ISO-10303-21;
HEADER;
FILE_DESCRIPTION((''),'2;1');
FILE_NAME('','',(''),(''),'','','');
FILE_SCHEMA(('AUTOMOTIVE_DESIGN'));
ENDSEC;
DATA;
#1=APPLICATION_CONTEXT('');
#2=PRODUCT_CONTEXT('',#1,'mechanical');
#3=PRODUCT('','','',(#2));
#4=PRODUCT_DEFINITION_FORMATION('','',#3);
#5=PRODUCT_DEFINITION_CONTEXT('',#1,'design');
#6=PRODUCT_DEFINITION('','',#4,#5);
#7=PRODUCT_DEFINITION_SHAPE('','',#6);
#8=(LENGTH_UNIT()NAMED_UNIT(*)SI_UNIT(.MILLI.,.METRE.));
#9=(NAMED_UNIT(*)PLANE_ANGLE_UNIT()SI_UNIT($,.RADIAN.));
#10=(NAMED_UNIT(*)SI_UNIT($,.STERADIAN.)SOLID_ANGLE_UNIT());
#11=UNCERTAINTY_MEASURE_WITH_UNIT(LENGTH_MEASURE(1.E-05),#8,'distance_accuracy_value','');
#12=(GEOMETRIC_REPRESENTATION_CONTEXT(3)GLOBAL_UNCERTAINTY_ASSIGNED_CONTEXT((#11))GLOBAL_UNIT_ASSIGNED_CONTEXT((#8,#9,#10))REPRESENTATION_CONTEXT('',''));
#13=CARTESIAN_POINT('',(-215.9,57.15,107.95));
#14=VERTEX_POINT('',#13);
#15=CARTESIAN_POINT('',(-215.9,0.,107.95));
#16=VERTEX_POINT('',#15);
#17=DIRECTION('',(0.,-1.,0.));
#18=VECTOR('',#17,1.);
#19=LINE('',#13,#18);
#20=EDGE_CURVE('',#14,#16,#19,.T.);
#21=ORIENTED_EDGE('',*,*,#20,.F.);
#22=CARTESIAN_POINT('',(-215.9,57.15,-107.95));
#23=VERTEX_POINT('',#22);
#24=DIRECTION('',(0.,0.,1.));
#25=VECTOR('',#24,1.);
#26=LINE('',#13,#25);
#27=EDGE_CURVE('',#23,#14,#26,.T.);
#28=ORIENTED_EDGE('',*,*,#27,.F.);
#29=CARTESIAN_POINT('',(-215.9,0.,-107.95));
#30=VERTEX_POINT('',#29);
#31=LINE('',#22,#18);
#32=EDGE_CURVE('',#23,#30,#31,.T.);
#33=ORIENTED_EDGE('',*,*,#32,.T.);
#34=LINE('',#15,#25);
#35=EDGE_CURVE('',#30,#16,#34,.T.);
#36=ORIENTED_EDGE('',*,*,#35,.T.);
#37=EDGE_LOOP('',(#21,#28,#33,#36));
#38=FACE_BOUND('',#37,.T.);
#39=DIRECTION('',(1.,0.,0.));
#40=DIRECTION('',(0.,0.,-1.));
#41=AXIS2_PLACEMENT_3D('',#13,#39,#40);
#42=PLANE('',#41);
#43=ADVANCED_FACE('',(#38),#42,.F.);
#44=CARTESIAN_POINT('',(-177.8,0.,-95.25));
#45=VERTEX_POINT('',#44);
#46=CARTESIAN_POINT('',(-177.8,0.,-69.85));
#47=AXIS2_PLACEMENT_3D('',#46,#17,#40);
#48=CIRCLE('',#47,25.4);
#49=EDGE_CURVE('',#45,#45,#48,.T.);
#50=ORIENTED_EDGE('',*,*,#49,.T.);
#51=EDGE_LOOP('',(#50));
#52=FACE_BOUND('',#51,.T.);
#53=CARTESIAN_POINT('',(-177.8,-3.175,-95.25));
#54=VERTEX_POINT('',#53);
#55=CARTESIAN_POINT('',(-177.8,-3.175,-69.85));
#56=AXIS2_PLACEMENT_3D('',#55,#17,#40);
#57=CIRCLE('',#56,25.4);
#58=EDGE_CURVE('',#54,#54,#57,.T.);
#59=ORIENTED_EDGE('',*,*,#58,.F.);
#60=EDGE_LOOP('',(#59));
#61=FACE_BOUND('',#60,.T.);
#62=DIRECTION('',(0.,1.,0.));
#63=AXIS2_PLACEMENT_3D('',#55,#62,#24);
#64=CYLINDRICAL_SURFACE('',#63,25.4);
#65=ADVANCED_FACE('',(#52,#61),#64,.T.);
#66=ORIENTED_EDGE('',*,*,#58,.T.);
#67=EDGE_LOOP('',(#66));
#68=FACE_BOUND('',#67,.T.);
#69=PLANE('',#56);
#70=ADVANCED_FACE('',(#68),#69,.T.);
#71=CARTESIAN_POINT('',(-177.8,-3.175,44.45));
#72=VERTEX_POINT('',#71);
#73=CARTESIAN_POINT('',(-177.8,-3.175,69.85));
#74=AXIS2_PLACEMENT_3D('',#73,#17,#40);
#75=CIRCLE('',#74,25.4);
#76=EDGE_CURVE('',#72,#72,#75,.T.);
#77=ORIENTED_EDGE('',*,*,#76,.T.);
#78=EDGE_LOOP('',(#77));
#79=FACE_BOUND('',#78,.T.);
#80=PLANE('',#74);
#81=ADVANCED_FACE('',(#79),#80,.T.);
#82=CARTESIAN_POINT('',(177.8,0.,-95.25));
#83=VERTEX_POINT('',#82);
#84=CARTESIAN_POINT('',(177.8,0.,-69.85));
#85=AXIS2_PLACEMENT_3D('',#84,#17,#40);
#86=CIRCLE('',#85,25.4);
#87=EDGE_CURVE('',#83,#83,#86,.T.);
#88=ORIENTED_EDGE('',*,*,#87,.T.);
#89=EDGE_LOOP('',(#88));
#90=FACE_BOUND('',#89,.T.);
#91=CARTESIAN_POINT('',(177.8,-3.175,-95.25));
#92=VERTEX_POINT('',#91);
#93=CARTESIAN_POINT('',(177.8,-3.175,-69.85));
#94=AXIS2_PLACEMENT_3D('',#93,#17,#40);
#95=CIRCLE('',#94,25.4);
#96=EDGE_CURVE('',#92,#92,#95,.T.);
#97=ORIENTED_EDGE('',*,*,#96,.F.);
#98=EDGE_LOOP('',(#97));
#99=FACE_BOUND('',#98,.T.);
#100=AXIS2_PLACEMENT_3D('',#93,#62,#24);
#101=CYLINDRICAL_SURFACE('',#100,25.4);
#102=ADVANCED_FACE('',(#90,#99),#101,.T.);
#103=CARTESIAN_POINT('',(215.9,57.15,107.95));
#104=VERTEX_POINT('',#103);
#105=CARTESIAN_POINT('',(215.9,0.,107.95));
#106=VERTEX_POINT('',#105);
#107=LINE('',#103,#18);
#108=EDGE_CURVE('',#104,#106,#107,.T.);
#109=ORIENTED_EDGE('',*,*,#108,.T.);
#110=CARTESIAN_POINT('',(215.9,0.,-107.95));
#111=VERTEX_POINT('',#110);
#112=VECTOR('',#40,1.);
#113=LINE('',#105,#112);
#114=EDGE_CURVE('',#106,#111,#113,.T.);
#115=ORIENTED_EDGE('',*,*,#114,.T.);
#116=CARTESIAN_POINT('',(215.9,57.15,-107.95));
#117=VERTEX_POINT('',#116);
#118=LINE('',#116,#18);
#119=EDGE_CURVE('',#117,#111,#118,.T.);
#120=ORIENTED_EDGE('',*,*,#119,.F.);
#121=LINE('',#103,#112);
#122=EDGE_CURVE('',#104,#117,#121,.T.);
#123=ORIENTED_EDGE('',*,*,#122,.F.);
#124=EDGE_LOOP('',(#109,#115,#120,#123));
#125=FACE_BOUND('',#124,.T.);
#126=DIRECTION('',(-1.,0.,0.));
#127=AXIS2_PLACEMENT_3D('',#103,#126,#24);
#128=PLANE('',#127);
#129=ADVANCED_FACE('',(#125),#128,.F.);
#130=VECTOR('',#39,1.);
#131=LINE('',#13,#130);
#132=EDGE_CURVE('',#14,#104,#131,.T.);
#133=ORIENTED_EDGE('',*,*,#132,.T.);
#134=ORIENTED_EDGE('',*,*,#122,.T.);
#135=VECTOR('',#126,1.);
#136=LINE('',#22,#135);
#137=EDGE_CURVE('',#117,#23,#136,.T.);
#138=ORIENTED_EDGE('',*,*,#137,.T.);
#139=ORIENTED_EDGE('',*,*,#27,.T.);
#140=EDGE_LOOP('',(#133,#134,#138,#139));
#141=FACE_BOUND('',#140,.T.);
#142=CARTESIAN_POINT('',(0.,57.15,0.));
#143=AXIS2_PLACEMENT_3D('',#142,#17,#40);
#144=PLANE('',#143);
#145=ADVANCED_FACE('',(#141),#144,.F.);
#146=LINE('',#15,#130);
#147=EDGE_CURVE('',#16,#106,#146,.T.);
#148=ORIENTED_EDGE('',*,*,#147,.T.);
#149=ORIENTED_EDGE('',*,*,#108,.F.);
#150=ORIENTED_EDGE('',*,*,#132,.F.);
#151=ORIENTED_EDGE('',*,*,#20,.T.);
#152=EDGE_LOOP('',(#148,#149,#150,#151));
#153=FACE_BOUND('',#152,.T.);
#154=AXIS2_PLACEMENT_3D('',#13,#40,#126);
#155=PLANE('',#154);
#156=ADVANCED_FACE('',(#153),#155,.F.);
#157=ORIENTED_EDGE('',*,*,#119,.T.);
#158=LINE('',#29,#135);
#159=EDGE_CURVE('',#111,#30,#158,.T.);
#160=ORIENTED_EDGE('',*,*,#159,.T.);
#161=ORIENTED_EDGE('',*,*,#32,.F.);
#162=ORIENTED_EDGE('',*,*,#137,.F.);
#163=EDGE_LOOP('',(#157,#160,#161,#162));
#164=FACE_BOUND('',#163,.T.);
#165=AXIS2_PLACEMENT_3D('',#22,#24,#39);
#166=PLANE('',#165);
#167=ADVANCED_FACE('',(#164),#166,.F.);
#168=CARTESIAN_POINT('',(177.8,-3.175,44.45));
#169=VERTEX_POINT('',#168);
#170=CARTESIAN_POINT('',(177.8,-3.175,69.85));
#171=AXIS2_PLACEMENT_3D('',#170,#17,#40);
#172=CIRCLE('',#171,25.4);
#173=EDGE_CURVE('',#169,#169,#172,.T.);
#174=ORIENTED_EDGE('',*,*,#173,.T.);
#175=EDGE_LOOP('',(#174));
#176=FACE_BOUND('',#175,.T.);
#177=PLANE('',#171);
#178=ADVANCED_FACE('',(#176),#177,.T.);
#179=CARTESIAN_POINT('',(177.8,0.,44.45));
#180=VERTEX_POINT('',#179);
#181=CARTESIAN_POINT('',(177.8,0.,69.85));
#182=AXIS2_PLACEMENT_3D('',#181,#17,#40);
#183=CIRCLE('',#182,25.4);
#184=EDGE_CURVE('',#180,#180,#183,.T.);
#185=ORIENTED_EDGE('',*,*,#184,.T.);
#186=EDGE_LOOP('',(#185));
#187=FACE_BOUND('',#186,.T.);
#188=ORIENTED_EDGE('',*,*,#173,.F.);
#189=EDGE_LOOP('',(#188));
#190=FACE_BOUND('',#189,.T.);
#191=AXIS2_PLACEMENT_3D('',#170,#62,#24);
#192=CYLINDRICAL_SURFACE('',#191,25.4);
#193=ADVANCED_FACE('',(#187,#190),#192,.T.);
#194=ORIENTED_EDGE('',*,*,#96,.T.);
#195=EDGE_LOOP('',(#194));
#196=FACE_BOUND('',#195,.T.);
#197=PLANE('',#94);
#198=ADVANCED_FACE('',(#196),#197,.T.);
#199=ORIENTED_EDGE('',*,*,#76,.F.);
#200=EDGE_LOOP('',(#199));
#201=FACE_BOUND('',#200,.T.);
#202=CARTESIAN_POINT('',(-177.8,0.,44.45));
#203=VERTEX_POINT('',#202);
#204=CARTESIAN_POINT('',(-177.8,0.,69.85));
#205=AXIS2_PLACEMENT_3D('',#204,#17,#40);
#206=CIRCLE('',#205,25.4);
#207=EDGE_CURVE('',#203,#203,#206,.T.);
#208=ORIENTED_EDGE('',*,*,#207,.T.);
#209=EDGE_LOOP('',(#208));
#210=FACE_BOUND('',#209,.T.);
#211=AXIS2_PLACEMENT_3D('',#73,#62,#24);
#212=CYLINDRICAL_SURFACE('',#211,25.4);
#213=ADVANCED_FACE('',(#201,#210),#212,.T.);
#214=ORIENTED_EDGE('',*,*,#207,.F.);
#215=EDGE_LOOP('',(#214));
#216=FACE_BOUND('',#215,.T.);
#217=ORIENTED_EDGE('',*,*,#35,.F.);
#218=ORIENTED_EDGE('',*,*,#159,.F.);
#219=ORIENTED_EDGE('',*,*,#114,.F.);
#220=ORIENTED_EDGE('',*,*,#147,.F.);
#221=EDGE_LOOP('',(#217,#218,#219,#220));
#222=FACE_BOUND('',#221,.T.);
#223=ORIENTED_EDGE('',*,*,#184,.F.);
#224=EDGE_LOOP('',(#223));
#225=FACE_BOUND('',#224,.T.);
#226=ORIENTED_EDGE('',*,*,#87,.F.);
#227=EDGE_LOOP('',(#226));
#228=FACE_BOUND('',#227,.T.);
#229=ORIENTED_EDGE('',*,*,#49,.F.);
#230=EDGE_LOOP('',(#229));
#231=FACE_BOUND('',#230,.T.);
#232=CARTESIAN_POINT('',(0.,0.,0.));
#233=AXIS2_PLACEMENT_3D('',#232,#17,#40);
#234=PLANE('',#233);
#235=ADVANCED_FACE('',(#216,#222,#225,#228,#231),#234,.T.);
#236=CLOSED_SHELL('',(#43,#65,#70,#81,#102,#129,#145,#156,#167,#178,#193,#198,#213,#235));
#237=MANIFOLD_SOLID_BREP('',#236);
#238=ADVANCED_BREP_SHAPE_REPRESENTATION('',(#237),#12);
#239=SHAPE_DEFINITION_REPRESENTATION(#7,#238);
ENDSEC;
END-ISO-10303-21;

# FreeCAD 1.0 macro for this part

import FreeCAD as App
import Part
import Sketcher
from FreeCAD import Vector
Q = App.Units.Quantity

doc = App.newDocument("Part")
params = doc.addObject("Spreadsheet::Sheet", "Params")
for row, (alias, value) in enumerate([
    ("sketch1_width", "17 in"),
    ("sketch1_height", "8.5 in"),
    ("pad1_length", "2.25 in"),
    ("sketch2_diameter", "2 in"),
    ("pad2_length", "0.125 in"),
], start=1):
    params.set(f"A{row}", alias)
    params.set(f"B{row}", "=" + value)
    params.setAlias(f"B{row}", alias)

body = doc.addObject("PartDesign::Body", "Body")

sketch1 = body.newObject("Sketcher::SketchObject", "Sketch")
sketch1.AttachmentSupport = (doc.getObject("XZ_Plane"), [""])
sketch1.MapMode = "FlatFace"
sketch1.addGeometry(Part.LineSegment(Vector(-215.9, -107.95, 0), Vector(-215.9, 107.95, 0)), False)
sketch1.addGeometry(Part.LineSegment(Vector(-215.9, 107.95, 0), Vector(215.9, 107.95, 0)), False)
sketch1.addGeometry(Part.LineSegment(Vector(215.9, 107.95, 0), Vector(215.9, -107.95, 0)), False)
sketch1.addGeometry(Part.LineSegment(Vector(215.9, -107.95, 0), Vector(-215.9, -107.95, 0)), False)
sketch1.addConstraint(Sketcher.Constraint("Coincident", 0, 2, 1, 1))
sketch1.addConstraint(Sketcher.Constraint("Coincident", 1, 2, 2, 1))
sketch1.addConstraint(Sketcher.Constraint("Coincident", 2, 2, 3, 1))
sketch1.addConstraint(Sketcher.Constraint("Coincident", 3, 2, 0, 1))
sketch1.addConstraint(Sketcher.Constraint("Vertical", 0))
sketch1.addConstraint(Sketcher.Constraint("Horizontal", 1))
sketch1.addConstraint(Sketcher.Constraint("Vertical", 2))
sketch1.addConstraint(Sketcher.Constraint("Horizontal", 3))
sketch1.addConstraint(Sketcher.Constraint("Symmetric", 0, 2, 2, 2, -1, 1))
sketch1.addConstraint(Sketcher.Constraint("DistanceX", 1, 1, 1, 2, Q("17 in")))
sketch1.addConstraint(Sketcher.Constraint("DistanceY", 0, 1, 0, 2, Q("8.5 in")))
sketch1.setExpression("Constraints[9]", "Params.sketch1_width")
sketch1.setExpression("Constraints[10]", "Params.sketch1_height")
pad1 = body.newObject("PartDesign::Pad", "Pad")
pad1.Profile = sketch1
pad1.setExpression("Length", "Params.pad1_length")
pad1.Reversed = True

sketch2 = body.newObject("Sketcher::SketchObject", "Sketch001")
sketch2.AttachmentSupport = (doc.getObject("XZ_Plane"), [""])
sketch2.MapMode = "FlatFace"
sketch2.addGeometry(Part.Circle(Vector(-177.8, 69.85, 0), Vector(0, 0, 1), 25.4), False)
sketch2.addGeometry(Part.Circle(Vector(-177.8, -69.85, 0), Vector(0, 0, 1), 25.4), False)
sketch2.addGeometry(Part.Circle(Vector(177.8, -69.85, 0), Vector(0, 0, 1), 25.4), False)
sketch2.addGeometry(Part.Circle(Vector(177.8, 69.85, 0), Vector(0, 0, 1), 25.4), False)
sketch2.addConstraint(Sketcher.Constraint("Equal", 0, 1))
sketch2.addConstraint(Sketcher.Constraint("Equal", 1, 2))
sketch2.addConstraint(Sketcher.Constraint("Equal", 2, 3))
sketch2.addConstraint(Sketcher.Constraint("Symmetric", 0, 3, 2, 3, -1, 1))
sketch2.addConstraint(Sketcher.Constraint("Symmetric", 1, 3, 3, 3, -1, 1))
sketch2.addConstraint(Sketcher.Constraint("Symmetric", 1, 3, 2, 3, -2))
sketch2.addConstraint(Sketcher.Constraint("Diameter", 0, Q("2 in")))
sketch2.addConstraint(Sketcher.Constraint("DistanceX", 0, 3, -1, 1, Q("7 in")))
sketch2.addConstraint(Sketcher.Constraint("DistanceY", 1, 3, 0, 3, Q("5.5 in")))
sketch2.setExpression("Constraints[6]", "Params.sketch2_diameter")
pad2 = body.newObject("PartDesign::Pad", "Pad001")
pad2.Profile = sketch2
pad2.setExpression("Length", "Params.pad2_length")

doc.recompute()
